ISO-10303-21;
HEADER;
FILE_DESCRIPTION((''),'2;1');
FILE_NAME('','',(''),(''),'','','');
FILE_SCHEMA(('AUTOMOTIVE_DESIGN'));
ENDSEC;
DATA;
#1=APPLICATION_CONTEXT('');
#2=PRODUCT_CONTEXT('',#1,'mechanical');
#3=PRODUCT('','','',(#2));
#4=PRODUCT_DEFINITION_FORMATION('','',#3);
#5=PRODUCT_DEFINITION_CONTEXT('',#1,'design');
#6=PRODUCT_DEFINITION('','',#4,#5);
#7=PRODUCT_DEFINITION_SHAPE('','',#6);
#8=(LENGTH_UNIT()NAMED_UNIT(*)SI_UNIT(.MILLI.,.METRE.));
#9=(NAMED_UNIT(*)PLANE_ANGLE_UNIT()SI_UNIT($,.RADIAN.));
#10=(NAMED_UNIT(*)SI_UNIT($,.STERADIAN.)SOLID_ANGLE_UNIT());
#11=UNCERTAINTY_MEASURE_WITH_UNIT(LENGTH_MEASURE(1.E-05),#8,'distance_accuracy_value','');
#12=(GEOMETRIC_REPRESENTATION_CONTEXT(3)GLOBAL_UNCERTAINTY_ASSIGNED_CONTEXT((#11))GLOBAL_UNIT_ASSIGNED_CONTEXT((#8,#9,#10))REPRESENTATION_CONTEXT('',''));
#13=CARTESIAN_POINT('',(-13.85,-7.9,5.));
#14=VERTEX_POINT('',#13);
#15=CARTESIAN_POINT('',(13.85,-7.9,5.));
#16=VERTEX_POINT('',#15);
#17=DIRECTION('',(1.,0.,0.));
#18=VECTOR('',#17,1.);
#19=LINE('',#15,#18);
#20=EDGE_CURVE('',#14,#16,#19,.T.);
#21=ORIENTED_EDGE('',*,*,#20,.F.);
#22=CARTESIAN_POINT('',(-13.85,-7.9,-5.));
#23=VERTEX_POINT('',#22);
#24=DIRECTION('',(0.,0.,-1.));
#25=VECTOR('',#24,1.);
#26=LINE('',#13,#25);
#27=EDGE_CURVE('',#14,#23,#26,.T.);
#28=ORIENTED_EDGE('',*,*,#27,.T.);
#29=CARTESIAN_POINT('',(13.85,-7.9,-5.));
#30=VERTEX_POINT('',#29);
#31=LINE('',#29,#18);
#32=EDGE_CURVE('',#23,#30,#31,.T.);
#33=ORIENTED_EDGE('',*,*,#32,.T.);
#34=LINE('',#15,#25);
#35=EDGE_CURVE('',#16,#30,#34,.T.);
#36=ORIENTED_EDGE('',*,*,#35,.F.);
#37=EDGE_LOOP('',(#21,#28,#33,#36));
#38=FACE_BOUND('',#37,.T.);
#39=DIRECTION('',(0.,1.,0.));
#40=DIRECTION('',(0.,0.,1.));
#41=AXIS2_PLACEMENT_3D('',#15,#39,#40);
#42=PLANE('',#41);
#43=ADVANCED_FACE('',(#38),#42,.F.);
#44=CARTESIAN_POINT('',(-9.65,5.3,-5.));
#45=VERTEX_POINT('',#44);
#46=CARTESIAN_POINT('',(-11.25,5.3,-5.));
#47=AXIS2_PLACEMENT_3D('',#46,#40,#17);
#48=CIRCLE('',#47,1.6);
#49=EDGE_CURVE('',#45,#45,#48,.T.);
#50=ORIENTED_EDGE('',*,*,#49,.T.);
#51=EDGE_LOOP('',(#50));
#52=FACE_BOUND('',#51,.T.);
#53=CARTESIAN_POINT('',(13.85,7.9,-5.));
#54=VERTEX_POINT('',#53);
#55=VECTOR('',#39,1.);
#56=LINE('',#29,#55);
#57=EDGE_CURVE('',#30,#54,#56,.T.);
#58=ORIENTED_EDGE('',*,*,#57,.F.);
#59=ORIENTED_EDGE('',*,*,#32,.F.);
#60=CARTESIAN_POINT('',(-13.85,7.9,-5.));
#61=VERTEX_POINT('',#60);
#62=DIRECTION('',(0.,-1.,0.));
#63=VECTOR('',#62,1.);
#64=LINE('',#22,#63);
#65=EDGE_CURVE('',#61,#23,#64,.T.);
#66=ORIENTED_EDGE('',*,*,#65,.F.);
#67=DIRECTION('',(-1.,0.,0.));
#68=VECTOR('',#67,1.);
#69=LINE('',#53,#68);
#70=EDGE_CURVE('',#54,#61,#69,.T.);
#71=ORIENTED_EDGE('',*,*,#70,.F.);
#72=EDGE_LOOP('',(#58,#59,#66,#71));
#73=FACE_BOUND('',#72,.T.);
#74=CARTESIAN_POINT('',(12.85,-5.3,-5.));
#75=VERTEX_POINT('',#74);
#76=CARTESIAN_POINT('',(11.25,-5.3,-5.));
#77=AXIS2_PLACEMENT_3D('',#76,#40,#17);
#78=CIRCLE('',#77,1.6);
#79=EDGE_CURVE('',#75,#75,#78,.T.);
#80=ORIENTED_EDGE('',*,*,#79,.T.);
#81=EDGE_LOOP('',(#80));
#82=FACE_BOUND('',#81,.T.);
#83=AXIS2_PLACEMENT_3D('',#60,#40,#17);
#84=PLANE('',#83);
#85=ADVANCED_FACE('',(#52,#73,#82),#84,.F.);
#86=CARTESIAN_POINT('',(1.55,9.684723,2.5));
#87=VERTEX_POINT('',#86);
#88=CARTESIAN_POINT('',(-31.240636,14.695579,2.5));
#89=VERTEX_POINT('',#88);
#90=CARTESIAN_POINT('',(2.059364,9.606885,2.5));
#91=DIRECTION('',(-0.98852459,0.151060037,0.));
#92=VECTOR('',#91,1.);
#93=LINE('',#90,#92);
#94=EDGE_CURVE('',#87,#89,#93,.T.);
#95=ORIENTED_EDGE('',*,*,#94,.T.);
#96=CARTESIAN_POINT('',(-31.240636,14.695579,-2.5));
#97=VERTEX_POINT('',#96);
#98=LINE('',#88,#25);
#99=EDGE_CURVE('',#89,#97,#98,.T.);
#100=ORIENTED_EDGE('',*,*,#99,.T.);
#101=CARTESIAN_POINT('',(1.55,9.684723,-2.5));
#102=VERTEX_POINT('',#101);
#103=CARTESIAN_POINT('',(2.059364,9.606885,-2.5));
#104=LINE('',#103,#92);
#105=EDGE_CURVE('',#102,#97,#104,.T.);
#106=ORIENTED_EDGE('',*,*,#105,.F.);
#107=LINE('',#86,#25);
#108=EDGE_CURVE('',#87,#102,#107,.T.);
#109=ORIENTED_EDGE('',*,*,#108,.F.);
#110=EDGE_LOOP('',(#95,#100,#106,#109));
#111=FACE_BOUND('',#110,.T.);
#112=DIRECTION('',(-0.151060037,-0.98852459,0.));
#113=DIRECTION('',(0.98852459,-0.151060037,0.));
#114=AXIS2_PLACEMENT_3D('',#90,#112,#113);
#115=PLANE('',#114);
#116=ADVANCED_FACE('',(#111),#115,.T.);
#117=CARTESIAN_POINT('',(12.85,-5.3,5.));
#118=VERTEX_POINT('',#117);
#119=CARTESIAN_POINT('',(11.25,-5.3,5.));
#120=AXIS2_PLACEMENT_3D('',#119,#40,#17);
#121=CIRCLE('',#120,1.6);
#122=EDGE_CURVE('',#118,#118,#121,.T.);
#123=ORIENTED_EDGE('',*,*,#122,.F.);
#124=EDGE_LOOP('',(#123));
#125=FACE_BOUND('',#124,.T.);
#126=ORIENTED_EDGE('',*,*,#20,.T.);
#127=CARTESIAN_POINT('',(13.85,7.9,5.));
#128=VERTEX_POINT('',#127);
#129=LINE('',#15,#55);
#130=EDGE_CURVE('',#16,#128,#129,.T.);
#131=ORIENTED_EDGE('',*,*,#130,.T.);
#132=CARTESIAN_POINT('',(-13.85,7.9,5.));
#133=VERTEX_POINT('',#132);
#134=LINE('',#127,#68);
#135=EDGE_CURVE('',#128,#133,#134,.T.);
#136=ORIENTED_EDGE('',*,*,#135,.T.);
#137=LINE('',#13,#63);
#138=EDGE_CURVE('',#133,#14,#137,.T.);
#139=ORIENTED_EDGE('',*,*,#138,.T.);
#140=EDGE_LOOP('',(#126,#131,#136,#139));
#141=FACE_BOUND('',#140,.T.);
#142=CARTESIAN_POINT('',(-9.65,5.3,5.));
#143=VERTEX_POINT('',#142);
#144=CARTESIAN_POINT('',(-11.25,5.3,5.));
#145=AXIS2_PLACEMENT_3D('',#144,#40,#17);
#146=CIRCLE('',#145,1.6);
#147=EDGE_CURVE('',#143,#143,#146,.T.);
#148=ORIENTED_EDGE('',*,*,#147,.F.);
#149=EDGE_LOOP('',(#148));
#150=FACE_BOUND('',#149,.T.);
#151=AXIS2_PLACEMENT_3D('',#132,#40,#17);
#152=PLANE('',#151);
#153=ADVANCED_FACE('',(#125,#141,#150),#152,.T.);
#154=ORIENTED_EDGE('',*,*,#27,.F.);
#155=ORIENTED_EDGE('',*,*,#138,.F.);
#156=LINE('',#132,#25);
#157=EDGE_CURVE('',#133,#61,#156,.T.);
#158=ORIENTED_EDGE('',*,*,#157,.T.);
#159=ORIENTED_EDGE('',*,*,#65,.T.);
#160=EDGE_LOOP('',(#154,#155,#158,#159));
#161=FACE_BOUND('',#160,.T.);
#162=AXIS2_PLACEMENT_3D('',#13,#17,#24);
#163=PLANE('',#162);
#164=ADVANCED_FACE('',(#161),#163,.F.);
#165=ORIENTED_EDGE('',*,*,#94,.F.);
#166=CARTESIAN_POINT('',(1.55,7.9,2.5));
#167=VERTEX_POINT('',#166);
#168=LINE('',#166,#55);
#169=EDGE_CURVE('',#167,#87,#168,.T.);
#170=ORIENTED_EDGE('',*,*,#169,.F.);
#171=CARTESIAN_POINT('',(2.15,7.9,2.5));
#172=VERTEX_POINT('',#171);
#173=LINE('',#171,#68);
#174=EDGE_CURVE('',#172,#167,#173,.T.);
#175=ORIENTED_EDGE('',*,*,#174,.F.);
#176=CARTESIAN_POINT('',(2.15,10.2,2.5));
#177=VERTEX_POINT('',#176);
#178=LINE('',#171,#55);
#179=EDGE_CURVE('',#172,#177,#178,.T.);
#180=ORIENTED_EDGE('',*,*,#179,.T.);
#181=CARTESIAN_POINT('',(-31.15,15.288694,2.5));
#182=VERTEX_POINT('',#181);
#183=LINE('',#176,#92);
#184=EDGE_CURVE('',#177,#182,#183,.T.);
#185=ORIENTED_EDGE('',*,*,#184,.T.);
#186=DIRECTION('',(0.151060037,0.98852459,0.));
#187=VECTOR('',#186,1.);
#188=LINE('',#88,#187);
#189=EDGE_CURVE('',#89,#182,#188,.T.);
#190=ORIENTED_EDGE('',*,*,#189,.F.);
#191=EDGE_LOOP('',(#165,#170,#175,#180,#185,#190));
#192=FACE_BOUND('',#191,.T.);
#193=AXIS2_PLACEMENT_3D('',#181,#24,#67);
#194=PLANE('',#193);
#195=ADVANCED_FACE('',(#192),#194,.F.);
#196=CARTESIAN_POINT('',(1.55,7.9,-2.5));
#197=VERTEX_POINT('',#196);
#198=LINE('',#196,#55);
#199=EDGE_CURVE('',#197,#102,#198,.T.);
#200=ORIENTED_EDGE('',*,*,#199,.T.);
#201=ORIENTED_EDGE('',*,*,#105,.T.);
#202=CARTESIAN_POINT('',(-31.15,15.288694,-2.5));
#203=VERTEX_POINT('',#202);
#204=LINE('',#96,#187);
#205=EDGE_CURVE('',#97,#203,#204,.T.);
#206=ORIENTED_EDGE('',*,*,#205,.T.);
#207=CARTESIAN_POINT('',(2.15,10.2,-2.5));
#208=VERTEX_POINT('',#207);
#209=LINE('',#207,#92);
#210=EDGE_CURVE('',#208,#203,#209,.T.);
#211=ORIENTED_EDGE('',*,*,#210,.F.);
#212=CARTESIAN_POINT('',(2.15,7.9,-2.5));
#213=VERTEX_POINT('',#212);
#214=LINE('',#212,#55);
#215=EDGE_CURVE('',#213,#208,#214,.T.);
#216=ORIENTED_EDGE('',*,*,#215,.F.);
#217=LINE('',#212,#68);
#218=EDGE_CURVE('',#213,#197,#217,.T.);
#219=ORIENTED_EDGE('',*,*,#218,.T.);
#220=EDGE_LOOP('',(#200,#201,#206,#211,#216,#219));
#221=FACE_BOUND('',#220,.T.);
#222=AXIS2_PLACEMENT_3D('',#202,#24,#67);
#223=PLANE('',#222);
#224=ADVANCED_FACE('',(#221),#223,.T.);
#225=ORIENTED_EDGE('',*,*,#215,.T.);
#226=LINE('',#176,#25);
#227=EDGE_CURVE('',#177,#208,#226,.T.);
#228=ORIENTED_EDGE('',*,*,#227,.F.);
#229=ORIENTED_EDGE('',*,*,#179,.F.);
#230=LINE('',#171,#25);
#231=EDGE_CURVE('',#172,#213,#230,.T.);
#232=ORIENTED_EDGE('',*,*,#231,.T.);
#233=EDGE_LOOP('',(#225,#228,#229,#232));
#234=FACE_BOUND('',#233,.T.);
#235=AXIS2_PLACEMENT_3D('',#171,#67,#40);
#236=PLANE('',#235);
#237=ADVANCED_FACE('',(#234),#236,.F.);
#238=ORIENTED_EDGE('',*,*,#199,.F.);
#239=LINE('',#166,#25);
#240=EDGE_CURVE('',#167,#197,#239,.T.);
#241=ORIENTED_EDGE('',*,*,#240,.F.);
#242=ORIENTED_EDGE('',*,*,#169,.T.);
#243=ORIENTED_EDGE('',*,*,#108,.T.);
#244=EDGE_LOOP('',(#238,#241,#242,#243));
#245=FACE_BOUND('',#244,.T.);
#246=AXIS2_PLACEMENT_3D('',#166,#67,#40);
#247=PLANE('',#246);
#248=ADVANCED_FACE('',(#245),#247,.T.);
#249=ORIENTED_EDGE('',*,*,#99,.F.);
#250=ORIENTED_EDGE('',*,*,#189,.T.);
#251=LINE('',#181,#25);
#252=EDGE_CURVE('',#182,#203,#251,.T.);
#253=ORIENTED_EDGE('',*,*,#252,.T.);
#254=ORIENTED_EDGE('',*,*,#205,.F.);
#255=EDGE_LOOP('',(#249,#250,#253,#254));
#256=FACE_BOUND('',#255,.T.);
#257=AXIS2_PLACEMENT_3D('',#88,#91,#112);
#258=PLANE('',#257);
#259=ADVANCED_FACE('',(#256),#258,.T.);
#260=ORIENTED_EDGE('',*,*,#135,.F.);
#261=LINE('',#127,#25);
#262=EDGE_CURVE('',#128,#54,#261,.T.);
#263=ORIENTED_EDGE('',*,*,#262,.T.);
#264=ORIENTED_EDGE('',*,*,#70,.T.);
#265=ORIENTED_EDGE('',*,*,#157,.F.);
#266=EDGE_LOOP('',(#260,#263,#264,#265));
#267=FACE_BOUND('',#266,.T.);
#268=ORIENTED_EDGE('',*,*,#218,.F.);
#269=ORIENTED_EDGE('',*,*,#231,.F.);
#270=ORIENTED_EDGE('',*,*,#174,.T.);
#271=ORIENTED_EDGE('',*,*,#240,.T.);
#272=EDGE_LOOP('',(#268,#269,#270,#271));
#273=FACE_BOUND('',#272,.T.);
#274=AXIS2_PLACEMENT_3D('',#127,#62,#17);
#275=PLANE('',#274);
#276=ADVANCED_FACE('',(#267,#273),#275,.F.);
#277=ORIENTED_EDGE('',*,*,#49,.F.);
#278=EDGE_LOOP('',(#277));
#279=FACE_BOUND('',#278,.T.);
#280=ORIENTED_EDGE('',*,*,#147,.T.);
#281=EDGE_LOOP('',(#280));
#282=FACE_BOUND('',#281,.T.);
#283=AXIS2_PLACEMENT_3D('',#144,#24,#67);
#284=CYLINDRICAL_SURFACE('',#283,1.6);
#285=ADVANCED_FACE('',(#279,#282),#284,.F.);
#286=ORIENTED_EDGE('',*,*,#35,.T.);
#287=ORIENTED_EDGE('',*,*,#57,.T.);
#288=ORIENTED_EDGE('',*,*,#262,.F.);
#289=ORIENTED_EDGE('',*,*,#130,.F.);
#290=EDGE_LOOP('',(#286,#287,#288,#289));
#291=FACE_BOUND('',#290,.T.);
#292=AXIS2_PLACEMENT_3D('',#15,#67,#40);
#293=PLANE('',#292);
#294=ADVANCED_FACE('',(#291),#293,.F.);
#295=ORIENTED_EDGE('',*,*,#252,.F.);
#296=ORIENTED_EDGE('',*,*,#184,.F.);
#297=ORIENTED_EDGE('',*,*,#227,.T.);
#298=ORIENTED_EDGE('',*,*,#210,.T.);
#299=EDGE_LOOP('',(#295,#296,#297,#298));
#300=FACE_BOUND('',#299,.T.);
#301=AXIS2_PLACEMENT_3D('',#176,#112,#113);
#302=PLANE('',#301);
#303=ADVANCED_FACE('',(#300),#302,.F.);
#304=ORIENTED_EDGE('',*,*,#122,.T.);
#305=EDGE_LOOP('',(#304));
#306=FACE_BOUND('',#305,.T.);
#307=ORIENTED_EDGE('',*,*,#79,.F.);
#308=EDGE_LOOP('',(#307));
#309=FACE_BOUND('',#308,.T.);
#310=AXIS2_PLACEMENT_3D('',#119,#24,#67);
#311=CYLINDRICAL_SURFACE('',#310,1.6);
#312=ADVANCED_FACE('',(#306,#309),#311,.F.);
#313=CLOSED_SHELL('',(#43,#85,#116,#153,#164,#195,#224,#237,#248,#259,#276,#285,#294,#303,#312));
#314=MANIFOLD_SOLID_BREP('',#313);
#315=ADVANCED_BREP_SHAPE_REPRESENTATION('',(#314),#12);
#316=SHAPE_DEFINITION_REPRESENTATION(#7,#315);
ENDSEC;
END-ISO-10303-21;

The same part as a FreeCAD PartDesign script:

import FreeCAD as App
import Part
import Sketcher

V = App.Vector

doc = App.newDocument("Part")
body = doc.addObject("PartDesign::Body", "Body")

# Sketch on XY plane
sketch1 = body.newObject("Sketcher::SketchObject", "Sketch")
sketch1.AttachmentSupport = (doc.getObject("XY_Plane"), [""])
sketch1.MapMode = "FlatFace"
sketch1.addGeometry([
    Part.LineSegment(V(-13.8, 7.9, 0), V(-13.8, -7.9, 0)),  # 0
    Part.LineSegment(V(-13.8, -7.9, 0), V(13.8, -7.9, 0)),  # 1
    Part.LineSegment(V(13.8, -7.9, 0), V(13.8, 7.9, 0)),  # 2
    Part.LineSegment(V(13.8, 7.9, 0), V(-13.8, 7.9, 0)),  # 3
    Part.Circle(V(11.2, -5.3, 0), V(0, 0, 1), 1.6),  # 4
    Part.Circle(V(-11.2, 5.3, 0), V(0, 0, 1), 1.6),  # 5
], False)
sketch1.addConstraint([
    Sketcher.Constraint("Coincident", 0, 2, 1, 1),
    Sketcher.Constraint("Coincident", 1, 2, 2, 1),
    Sketcher.Constraint("Coincident", 2, 2, 3, 1),
    Sketcher.Constraint("Coincident", 3, 2, 0, 1),
    Sketcher.Constraint("Vertical", 0),
    Sketcher.Constraint("Horizontal", 1),
    Sketcher.Constraint("Vertical", 2),
    Sketcher.Constraint("Horizontal", 3),
    Sketcher.Constraint("Equal", 4, 5),
    Sketcher.Constraint("Symmetric", 4, 3, 5, 3, -1, 1),
    Sketcher.Constraint("Symmetric", 0, 2, 2, 2, -1, 1),
    Sketcher.Constraint("Diameter", 4, 3.2),
    Sketcher.Constraint("DistanceX", 1, 1, 1, 2, 27.7),
    Sketcher.Constraint("DistanceY", 0, 2, 0, 1, 15.8),
    Sketcher.Constraint("DistanceY", 4, 3, -1, 1, 5.3),
    Sketcher.Constraint("DistanceX", 5, 3, 4, 3, 22.5),
])
pad1 = body.newObject("PartDesign::Pad", "Pad")
pad1.Profile = sketch1
pad1.Length = 10
pad1.Midplane = True

# Sketch on XY plane
sketch2 = body.newObject("Sketcher::SketchObject", "Sketch001")
sketch2.AttachmentSupport = (doc.getObject("XY_Plane"), [""])
sketch2.MapMode = "FlatFace"
sketch2.addGeometry([
    Part.LineSegment(V(2.1, 7.9, 0), V(2.1, 10.2, 0)),  # 0
    Part.LineSegment(V(2.1, 10.2, 0), V(-31.1, 15.3, 0)),  # 1
    Part.LineSegment(V(-31.1, 15.3, 0), V(-31.2, 14.7, 0)),  # 2
    Part.LineSegment(V(-31.2, 14.7, 0), V(1.6, 9.7, 0)),  # 3
    Part.LineSegment(V(1.6, 9.7, 0), V(1.6, 7.9, 0)),  # 4
    Part.LineSegment(V(1.6, 7.9, 0), V(2.1, 7.9, 0)),  # 5
], False)
sketch2.addConstraint([
    Sketcher.Constraint("Coincident", 0, 2, 1, 1),
    Sketcher.Constraint("Coincident", 1, 2, 2, 1),
    Sketcher.Constraint("Coincident", 2, 2, 3, 1),
    Sketcher.Constraint("Coincident", 3, 2, 4, 1),
    Sketcher.Constraint("Coincident", 4, 2, 5, 1),
    Sketcher.Constraint("Coincident", 5, 2, 0, 1),
    Sketcher.Constraint("Vertical", 0),
    Sketcher.Constraint("Vertical", 4),
    Sketcher.Constraint("Horizontal", 5),
    Sketcher.Constraint("Perpendicular", 1, 2),
    Sketcher.Constraint("Perpendicular", 2, 3),
    Sketcher.Constraint("DistanceX", 5, 1, 5, 2, 0.6),
    Sketcher.Constraint("DistanceY", 0, 1, 0, 2, 2.3),
    Sketcher.Constraint("Distance", 2, 0.6),
    Sketcher.Constraint("DistanceY", -1, 1, 0, 2, 10.2),
    Sketcher.Constraint("DistanceX", 1, 2, 0, 2, 33.3),
    Sketcher.Constraint("DistanceX", -1, 1, 0, 2, 2.15),
    Sketcher.Constraint("Distance", 3, 33.17129),
])
pad2 = body.newObject("PartDesign::Pad", "Pad001")
pad2.Profile = sketch2
pad2.Length = 5
pad2.Midplane = True

doc.recompute()
